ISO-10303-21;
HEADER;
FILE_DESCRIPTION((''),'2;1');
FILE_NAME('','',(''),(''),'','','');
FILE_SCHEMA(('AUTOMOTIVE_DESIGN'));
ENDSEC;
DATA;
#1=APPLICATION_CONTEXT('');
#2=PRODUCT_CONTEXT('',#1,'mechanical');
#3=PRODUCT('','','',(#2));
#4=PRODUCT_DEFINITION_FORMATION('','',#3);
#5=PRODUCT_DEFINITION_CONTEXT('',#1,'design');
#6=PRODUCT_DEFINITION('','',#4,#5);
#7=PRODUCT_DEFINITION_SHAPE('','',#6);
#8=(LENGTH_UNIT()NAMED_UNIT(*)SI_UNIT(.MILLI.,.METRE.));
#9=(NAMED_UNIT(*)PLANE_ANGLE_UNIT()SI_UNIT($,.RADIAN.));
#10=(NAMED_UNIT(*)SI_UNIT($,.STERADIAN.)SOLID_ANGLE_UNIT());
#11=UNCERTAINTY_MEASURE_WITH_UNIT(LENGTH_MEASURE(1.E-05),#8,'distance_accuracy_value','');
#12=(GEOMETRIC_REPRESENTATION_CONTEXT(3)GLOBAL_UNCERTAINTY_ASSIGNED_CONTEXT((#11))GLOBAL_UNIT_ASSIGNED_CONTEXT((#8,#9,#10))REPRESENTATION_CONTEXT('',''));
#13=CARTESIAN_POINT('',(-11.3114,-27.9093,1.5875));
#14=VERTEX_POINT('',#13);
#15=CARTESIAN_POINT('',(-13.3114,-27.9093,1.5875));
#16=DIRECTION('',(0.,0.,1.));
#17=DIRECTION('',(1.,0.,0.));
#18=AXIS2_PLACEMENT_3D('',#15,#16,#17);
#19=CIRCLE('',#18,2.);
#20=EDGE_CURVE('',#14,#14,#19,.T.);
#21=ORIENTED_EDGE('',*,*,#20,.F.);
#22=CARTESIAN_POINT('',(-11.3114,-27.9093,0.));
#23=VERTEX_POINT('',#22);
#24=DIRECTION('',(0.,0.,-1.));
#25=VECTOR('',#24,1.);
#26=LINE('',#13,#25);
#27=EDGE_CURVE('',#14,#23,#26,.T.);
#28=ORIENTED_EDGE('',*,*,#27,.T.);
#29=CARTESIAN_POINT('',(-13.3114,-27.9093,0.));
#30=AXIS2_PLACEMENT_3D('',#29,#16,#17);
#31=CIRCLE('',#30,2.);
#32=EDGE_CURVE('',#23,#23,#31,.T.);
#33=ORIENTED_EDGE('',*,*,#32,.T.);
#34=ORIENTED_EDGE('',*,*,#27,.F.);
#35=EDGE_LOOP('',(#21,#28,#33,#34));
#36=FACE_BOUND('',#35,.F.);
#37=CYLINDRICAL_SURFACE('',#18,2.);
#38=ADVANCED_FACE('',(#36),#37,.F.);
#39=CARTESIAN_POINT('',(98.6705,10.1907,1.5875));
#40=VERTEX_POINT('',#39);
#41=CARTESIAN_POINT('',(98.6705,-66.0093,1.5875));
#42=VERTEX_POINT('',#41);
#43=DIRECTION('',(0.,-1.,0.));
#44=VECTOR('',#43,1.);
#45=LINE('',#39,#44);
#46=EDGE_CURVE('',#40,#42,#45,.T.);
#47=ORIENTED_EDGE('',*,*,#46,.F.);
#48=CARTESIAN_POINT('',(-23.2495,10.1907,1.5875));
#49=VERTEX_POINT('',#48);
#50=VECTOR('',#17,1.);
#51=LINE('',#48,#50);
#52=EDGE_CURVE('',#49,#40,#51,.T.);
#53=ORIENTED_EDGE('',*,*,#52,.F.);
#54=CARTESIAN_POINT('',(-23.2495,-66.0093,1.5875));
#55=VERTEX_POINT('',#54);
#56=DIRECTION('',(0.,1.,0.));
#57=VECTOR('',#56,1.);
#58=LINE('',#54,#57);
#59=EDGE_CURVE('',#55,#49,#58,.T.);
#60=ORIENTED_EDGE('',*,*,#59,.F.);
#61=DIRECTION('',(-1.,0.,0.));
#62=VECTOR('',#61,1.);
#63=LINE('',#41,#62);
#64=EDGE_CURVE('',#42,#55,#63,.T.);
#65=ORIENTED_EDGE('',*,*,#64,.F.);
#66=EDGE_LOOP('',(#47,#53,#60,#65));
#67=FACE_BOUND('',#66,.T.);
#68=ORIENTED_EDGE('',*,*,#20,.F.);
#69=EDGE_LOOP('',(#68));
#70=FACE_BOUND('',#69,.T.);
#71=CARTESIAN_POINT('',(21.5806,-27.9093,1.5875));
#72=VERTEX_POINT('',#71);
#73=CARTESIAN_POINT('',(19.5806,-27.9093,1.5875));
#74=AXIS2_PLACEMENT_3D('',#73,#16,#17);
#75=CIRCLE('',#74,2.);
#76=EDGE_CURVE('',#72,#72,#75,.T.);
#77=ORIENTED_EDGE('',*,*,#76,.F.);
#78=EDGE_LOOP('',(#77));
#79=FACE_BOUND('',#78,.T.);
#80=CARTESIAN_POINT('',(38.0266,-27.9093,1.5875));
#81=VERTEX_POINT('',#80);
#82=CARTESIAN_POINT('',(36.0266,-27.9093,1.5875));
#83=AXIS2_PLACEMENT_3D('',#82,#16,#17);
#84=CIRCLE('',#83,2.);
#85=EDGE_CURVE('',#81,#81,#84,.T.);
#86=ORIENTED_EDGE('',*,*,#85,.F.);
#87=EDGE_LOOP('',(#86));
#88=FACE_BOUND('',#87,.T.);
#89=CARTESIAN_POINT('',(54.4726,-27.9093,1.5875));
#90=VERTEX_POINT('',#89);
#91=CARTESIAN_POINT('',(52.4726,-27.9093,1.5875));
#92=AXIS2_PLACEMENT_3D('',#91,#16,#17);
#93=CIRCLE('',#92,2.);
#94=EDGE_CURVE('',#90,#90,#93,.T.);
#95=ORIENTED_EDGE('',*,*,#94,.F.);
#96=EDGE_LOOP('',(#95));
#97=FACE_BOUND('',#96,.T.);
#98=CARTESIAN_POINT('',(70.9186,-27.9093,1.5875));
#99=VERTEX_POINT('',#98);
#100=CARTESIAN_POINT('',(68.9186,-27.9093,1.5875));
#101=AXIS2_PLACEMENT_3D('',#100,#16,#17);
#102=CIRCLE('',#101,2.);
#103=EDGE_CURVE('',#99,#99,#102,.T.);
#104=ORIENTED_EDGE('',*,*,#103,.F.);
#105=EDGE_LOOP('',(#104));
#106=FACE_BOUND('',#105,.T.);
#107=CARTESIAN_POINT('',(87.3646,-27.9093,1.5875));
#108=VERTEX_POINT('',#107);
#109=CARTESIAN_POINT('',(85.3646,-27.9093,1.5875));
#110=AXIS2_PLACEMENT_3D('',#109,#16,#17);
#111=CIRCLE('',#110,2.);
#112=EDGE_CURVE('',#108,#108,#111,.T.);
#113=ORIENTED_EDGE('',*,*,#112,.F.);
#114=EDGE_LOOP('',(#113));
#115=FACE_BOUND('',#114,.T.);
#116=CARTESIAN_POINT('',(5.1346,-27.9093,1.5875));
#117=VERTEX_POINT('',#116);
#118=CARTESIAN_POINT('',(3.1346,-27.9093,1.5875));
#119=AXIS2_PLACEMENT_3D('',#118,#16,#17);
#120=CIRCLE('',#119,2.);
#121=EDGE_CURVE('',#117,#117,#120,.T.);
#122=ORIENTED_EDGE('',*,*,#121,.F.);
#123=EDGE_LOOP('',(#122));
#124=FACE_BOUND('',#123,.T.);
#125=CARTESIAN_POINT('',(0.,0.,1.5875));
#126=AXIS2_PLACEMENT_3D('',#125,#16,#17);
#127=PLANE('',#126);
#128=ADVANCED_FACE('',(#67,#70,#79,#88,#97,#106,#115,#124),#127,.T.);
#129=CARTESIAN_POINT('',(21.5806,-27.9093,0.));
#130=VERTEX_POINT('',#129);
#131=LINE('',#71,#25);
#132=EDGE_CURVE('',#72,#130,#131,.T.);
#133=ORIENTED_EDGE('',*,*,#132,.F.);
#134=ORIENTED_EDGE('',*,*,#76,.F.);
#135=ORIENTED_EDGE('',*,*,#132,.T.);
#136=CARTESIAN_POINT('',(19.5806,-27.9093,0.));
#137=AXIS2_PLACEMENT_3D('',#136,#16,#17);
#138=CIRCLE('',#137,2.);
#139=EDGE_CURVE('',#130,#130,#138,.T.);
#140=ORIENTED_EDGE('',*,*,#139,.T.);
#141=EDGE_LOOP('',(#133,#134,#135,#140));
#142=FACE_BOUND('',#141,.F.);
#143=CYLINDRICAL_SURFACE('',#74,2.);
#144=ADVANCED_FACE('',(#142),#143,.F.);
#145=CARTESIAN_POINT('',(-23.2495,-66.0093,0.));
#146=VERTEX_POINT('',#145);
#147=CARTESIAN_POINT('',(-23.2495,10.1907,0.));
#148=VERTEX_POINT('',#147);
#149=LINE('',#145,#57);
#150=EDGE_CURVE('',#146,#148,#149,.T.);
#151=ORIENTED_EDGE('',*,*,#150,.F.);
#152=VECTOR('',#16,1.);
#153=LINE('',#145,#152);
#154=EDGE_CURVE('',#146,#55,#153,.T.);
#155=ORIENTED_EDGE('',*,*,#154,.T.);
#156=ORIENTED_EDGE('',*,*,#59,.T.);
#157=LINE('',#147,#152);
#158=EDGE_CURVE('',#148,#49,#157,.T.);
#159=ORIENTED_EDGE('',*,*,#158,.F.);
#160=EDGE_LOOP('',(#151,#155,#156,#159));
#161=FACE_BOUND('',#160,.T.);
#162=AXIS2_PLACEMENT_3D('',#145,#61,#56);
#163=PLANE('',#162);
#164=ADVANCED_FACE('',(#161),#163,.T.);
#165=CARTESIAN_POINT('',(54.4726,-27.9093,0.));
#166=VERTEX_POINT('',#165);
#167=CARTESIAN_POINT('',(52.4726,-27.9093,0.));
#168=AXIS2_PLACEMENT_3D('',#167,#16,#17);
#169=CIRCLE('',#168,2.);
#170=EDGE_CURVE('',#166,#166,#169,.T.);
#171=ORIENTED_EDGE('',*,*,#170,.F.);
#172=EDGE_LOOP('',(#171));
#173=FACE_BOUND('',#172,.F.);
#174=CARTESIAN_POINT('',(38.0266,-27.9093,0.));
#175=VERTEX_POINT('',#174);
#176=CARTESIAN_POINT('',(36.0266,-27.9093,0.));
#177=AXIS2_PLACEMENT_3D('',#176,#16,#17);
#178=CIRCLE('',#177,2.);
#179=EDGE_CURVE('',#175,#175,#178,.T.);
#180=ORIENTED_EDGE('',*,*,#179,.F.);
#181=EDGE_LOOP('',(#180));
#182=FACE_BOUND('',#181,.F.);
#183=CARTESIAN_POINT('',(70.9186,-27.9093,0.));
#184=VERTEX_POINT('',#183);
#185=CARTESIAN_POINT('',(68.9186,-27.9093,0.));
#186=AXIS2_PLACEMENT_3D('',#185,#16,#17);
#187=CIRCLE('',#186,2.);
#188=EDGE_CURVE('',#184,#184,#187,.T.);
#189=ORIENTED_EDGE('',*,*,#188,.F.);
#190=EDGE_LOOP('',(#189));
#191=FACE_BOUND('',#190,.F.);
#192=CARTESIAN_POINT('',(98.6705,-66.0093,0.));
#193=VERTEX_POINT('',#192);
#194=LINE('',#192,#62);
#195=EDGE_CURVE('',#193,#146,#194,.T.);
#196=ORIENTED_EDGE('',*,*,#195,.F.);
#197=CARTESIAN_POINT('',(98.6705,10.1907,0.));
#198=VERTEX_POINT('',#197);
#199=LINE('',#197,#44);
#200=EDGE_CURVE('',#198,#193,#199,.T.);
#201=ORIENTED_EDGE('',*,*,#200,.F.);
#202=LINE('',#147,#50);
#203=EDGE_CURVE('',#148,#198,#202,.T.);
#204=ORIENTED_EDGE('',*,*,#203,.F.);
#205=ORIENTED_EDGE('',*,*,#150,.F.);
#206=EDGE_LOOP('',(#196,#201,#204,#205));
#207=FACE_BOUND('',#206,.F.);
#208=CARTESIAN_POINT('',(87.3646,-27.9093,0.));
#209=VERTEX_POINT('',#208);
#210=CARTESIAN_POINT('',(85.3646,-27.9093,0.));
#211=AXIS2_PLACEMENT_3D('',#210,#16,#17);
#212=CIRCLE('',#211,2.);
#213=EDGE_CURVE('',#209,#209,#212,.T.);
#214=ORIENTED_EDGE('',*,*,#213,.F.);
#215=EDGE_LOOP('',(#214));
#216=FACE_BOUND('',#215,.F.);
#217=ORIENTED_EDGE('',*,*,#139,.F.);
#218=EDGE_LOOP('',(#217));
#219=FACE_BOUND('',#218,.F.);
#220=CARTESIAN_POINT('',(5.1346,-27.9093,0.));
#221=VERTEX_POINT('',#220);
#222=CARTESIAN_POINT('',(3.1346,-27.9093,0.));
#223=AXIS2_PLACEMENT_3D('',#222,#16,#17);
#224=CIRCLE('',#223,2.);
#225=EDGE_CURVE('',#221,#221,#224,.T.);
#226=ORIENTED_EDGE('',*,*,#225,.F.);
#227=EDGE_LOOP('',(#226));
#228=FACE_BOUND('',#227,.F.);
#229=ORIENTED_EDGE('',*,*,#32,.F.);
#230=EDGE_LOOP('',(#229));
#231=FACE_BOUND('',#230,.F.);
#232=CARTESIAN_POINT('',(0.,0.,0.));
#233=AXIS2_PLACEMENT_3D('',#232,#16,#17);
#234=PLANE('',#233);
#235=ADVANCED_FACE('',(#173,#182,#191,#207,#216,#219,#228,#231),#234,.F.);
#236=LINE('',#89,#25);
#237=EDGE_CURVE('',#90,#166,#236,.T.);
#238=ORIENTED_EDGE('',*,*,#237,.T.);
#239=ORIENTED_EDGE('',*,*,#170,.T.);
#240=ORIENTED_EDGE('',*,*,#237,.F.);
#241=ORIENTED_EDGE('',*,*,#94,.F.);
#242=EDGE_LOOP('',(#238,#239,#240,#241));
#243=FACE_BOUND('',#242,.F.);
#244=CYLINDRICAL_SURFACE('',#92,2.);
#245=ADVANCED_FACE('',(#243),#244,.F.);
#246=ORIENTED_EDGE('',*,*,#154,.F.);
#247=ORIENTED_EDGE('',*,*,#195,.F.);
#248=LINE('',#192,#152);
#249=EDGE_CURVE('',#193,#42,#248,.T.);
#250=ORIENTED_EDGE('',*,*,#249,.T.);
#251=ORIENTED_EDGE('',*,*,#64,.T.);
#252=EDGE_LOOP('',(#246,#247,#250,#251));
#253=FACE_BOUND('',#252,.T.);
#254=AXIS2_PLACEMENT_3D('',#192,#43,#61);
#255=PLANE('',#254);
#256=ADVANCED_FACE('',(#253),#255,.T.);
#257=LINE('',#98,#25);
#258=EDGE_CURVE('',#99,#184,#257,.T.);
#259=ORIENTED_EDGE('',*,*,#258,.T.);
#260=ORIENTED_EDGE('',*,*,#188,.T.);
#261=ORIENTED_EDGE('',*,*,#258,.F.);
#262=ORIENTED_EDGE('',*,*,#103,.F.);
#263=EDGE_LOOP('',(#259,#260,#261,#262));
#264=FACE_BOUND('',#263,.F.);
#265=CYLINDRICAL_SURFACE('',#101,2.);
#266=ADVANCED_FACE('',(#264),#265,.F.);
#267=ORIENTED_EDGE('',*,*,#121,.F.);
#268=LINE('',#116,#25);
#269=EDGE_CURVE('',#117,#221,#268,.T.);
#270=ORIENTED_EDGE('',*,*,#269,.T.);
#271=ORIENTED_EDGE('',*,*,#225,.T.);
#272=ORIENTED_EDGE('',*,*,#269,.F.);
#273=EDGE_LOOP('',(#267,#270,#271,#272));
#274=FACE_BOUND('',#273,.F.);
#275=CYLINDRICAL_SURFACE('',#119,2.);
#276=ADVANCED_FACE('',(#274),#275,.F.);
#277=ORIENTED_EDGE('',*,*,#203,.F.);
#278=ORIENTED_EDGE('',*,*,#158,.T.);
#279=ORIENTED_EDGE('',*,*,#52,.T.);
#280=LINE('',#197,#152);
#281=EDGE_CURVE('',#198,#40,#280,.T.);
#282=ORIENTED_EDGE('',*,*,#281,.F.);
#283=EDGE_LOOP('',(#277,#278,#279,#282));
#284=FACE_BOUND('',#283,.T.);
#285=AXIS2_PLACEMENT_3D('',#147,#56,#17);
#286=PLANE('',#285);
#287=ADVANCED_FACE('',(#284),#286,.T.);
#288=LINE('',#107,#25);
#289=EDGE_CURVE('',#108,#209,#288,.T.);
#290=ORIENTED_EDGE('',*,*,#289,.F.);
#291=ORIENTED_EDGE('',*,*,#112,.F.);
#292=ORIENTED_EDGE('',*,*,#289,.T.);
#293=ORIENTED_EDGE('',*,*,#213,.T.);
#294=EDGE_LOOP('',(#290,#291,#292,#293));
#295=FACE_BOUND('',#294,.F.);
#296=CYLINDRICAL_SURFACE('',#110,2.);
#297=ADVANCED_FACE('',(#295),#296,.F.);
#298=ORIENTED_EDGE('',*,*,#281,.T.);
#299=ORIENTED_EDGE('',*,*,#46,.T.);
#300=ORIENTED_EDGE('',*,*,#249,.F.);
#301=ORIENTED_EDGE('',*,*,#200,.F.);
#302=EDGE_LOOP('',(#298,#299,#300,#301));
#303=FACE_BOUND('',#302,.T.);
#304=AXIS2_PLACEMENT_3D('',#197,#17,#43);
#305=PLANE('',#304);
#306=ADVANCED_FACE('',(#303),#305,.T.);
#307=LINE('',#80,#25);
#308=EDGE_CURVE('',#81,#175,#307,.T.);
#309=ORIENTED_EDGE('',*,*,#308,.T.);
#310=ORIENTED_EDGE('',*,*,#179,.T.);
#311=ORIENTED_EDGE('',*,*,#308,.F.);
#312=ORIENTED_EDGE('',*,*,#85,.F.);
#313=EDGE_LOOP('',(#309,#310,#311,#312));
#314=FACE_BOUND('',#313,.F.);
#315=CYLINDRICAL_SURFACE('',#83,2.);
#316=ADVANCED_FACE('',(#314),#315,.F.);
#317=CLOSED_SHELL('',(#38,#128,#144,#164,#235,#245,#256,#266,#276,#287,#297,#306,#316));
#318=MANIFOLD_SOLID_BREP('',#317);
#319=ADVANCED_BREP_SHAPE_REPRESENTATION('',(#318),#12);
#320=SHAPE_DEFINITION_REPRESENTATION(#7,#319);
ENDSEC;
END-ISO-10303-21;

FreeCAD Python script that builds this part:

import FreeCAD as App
import Part
import Sketcher

V = App.Vector
Q = App.Units.Quantity

doc = App.newDocument("Part")
body = doc.addObject("PartDesign::Body", "Body")

# Sketch on XY plane
sketch1 = body.newObject("Sketcher::SketchObject", "Sketch")
sketch1.AttachmentSupport = (doc.getObject("XY_Plane"), [""])
sketch1.MapMode = "FlatFace"
sketch1.addGeometry([
    Part.LineSegment(V(99, 10, 0), V(-23, 10, 0)),
    Part.LineSegment(V(-23, 10, 0), V(-23, -66, 0)),
    Part.LineSegment(V(-23, -66, 0), V(99, -66, 0)),
    Part.LineSegment(V(99, -66, 0), V(99, 10, 0)),
], False)
sketch1.addConstraint([
    Sketcher.Constraint("Coincident", 0, 2, 1, 1),
    Sketcher.Constraint("Coincident", 1, 2, 2, 1),
    Sketcher.Constraint("Coincident", 2, 2, 3, 1),
    Sketcher.Constraint("Coincident", 3, 2, 0, 1),
    Sketcher.Constraint("Horizontal", 0),
    Sketcher.Constraint("Vertical", 1),
    Sketcher.Constraint("Horizontal", 2),
    Sketcher.Constraint("Vertical", 3),
    Sketcher.Constraint("DistanceY", 1, 2, 1, 1, Q("3 in")),
    Sketcher.Constraint("DistanceX", 0, 2, 0, 1, Q("4.8 in")),
    Sketcher.Constraint("DistanceY", -1, 1, 0, 2, Q("0.4012 in")),
    Sketcher.Constraint("DistanceX", 0, 2, -1, 1, Q("23.2495 mm")),
])
pad1 = body.newObject("PartDesign::Pad", "Pad")
pad1.Profile = sketch1
pad1.Length = Q("0.0625 in")

# Sketch on XY plane
sketch2 = body.newObject("Sketcher::SketchObject", "Sketch001")
sketch2.AttachmentSupport = (doc.getObject("XY_Plane"), [""])
sketch2.MapMode = "FlatFace"
sketch2.AttachmentOffset = App.Placement(V(0, 0, 0.0625 * 25.4), App.Rotation())
sketch2.addGeometry([
    Part.Circle(V(-13.3, -27.9, 0), V(0, 0, 1), 2),  # 0
    Part.Circle(V(3.1, -27.9, 0), V(0, 0, 1), 2),  # 1
    Part.Circle(V(19.6, -27.9, 0), V(0, 0, 1), 2),  # 2
    Part.Circle(V(36, -27.9, 0), V(0, 0, 1), 2),  # 3
    Part.Circle(V(68.9, -27.9, 0), V(0, 0, 1), 2),  # 4
    Part.Circle(V(85.4, -27.9, 0), V(0, 0, 1), 2),  # 5
    Part.Circle(V(52.5, -27.9, 0), V(0, 0, 1), 2),  # 6
], False)
sketch2.addConstraint([
    Sketcher.Constraint("Equal", 0, 1),
    Sketcher.Constraint("Equal", 1, 2),
    Sketcher.Constraint("Equal", 2, 3),
    Sketcher.Constraint("Equal", 3, 4),
    Sketcher.Constraint("Equal", 4, 5),
    Sketcher.Constraint("Equal", 5, 6),
    Sketcher.Constraint("Horizontal", 0, 3, 1, 3),
    Sketcher.Constraint("Horizontal", 1, 3, 2, 3),
    Sketcher.Constraint("Horizontal", 2, 3, 3, 3),
    Sketcher.Constraint("Horizontal", 3, 3, 4, 3),
    Sketcher.Constraint("Horizontal", 4, 3, 5, 3),
    Sketcher.Constraint("Horizontal", 5, 3, 6, 3),
    Sketcher.Constraint("Diameter", 0, Q("4 mm")),
    Sketcher.Constraint("DistanceY", 0, 3, -1, 1, Q("1.0988 in")),
    Sketcher.Constraint("DistanceX", -1, 1, 1, 3, Q("0.1234 in")),
    Sketcher.Constraint("DistanceX", -1, 1, 2, 3, Q("0.7709 in")),
    Sketcher.Constraint("DistanceX", -1, 1, 5, 3, Q("3.3608 in")),
    Sketcher.Constraint("DistanceX", 0, 3, 4, 3, Q("3.2374 in")),
    Sketcher.Constraint("DistanceX", 0, 3, -1, 1, Q("13.3114 mm")),
    Sketcher.Constraint("DistanceX", -1, 1, 3, 3, Q("36.0266 mm")),
    Sketcher.Constraint("DistanceX", -1, 1, 6, 3, Q("52.4726 mm")),
])
pocket1 = body.newObject("PartDesign::Pocket", "Pocket")
pocket1.Profile = sketch2
pocket1.Length = Q("0.0625 in")

doc.recompute()
